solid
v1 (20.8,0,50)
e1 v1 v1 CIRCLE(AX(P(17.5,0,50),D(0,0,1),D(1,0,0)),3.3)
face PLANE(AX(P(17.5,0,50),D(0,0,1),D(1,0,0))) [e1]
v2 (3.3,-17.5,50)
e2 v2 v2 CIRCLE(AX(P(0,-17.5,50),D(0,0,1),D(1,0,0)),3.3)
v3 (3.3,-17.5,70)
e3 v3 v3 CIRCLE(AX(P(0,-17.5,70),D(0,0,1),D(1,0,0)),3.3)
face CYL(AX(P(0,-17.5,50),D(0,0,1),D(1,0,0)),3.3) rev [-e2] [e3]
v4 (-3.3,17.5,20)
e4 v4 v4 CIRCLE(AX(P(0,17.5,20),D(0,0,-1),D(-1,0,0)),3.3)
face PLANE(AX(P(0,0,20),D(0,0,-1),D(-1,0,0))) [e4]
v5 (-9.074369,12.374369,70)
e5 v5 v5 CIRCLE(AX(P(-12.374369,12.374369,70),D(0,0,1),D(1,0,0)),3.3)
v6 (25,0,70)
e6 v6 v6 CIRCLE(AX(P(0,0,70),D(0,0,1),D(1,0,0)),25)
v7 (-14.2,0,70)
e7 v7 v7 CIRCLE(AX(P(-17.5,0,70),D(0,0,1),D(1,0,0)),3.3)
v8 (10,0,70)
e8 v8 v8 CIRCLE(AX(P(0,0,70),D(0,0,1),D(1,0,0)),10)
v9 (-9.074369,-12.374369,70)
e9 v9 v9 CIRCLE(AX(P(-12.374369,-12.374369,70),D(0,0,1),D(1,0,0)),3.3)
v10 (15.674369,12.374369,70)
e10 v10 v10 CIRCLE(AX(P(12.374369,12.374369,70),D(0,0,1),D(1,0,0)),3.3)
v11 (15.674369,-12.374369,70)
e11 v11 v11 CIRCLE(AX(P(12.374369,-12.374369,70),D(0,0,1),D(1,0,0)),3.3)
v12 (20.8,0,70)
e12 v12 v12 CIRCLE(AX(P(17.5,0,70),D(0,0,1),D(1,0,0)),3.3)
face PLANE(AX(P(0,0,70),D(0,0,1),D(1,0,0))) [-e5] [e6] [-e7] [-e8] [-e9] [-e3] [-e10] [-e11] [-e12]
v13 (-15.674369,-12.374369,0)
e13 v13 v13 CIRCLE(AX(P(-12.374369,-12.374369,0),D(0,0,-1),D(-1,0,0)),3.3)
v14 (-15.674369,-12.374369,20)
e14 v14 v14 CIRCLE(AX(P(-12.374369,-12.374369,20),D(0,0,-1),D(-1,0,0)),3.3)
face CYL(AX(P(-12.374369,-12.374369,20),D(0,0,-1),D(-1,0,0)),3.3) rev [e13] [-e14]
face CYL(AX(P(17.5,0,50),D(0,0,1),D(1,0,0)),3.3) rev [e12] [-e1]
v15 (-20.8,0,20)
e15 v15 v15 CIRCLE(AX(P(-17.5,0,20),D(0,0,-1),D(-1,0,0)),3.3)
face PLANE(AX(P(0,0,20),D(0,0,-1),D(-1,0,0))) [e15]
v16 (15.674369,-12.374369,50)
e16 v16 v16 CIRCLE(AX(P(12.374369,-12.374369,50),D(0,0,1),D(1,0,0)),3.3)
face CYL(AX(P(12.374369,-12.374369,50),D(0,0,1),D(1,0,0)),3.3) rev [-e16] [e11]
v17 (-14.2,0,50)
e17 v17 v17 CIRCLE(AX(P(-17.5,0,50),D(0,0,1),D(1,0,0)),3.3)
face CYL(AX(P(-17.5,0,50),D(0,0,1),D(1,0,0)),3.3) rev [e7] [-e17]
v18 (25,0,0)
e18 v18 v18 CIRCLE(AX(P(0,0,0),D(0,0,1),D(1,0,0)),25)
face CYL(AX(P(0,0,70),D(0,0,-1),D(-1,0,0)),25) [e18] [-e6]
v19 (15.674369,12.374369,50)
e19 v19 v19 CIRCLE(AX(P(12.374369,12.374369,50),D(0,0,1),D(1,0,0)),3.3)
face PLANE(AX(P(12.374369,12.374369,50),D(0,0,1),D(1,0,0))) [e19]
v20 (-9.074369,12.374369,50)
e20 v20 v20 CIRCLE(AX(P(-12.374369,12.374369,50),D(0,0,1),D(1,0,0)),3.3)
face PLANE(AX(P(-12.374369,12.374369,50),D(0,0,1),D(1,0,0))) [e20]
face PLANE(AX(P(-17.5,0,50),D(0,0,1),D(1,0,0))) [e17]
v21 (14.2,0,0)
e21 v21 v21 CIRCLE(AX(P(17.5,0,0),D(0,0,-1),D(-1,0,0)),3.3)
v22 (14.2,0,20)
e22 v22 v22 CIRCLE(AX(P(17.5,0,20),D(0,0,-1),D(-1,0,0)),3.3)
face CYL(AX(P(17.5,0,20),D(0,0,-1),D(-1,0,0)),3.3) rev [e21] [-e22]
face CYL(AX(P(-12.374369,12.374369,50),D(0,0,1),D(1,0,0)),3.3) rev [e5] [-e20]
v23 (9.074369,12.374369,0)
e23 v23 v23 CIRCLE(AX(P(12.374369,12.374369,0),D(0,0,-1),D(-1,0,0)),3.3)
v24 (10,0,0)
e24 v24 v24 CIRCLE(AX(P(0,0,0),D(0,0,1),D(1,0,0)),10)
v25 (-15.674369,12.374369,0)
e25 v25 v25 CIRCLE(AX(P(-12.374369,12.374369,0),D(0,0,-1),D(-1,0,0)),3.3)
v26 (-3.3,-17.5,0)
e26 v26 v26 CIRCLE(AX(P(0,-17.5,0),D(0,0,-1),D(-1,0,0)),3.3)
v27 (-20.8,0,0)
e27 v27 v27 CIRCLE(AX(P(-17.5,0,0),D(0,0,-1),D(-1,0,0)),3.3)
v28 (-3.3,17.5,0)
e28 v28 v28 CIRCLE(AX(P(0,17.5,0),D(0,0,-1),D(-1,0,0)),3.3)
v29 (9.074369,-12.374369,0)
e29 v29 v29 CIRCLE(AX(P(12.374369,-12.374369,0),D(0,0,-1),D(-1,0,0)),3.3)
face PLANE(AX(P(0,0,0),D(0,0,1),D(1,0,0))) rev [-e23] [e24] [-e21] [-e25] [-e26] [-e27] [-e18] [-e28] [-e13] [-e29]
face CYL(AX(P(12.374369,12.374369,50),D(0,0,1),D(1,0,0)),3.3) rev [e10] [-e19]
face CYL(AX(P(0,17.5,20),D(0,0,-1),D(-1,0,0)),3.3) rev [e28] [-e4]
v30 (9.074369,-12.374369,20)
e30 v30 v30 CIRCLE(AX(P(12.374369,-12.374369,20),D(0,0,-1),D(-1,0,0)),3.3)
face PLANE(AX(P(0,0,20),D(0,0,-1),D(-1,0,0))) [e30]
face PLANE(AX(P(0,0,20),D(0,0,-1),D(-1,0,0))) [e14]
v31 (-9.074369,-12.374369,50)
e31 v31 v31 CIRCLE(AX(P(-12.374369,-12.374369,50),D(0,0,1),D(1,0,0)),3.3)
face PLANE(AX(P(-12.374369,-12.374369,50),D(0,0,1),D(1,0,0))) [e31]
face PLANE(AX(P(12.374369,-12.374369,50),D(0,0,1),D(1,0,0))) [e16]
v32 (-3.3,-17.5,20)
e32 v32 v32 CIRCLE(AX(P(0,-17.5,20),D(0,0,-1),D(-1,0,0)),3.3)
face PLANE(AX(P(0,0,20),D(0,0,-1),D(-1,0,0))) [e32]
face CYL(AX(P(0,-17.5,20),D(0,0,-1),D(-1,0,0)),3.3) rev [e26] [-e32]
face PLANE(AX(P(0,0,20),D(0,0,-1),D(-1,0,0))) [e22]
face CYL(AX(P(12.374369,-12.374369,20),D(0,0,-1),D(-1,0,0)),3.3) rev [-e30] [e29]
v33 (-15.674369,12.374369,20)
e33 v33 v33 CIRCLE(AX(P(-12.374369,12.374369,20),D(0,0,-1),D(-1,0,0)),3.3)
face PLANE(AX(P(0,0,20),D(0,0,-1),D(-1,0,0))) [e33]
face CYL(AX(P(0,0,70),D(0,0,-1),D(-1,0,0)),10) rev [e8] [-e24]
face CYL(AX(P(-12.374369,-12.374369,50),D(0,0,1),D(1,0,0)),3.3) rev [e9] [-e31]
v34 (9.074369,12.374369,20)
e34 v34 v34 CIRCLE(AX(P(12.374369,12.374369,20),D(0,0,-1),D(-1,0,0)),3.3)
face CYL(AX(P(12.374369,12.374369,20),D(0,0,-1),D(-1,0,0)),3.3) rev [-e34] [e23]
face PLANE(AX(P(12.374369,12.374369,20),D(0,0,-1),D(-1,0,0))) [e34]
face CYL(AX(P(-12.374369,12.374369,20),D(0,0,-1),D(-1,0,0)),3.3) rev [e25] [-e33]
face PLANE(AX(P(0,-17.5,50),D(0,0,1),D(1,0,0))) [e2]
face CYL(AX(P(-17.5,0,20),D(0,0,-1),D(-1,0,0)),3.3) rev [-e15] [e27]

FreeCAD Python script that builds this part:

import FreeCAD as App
import Part
import Sketcher

doc = App.newDocument("Part")
body = doc.addObject("PartDesign::Body", "Body")

# Sketch on XY plane
sketch1 = body.newObject("Sketcher::SketchObject", "Sketch")
sketch1.AttachmentSupport = (doc.getObject("XY_Plane"), [""])
sketch1.MapMode = "FlatFace"
sketch1.addGeometry([
    Part.Circle(App.Vector(0, 0, 0), App.Vector(0, 0, 1), 25),
    Part.Circle(App.Vector(0, 0, 0), App.Vector(0, 0, 1), 10),
], False)
sketch1.addConstraint([
    Sketcher.Constraint("Coincident", 0, 3, -1, 1),
    Sketcher.Constraint("Coincident", 1, 3, -1, 1),
    Sketcher.Constraint("Diameter", 0, 50.0),
    Sketcher.Constraint("Diameter", 1, 20.0),
])
pad1 = body.newObject("PartDesign::Pad", "Pad")
pad1.Profile = sketch1
pad1.Length = 70

# Sketch on XY plane
sketch2 = body.newObject("Sketcher::SketchObject", "Sketch001")
sketch2.AttachmentSupport = (doc.getObject("XY_Plane"), [""])
sketch2.MapMode = "FlatFace"
sketch2.AttachmentOffset = App.Placement(App.Vector(0, 0, 70), App.Rotation())
sketch2.addGeometry([
    Part.Circle(App.Vector(12.4, 12.4, 0), App.Vector(0, 0, 1), 3.3),  # 0
    Part.Circle(App.Vector(17.5, 0, 0), App.Vector(0, 0, 1), 3.3),  # 1
    Part.Circle(App.Vector(12.4, -12.4, 0), App.Vector(0, 0, 1), 3.3),  # 2
    Part.Circle(App.Vector(0, -17.5, 0), App.Vector(0, 0, 1), 3.3),  # 3
    Part.Circle(App.Vector(-12.4, -12.4, 0), App.Vector(0, 0, 1), 3.3),  # 4
    Part.Circle(App.Vector(-17.5, 0, 0), App.Vector(0, 0, 1), 3.3),  # 5
    Part.Circle(App.Vector(-12.4, 12.4, 0), App.Vector(0, 0, 1), 3.3),  # 6
], False)
sketch2.addConstraint([
    Sketcher.Constraint("Equal", 0, 1),
    Sketcher.Constraint("Equal", 1, 2),
    Sketcher.Constraint("Equal", 2, 3),
    Sketcher.Constraint("Equal", 3, 4),
    Sketcher.Constraint("Equal", 4, 5),
    Sketcher.Constraint("Equal", 5, 6),
    Sketcher.Constraint("Symmetric", 0, 3, 4, 3, -1, 1),
    Sketcher.Constraint("Symmetric", 1, 3, 5, 3, -1, 1),
    Sketcher.Constraint("Symmetric", 2, 3, 6, 3, -1, 1),
    Sketcher.Constraint("Symmetric", 2, 3, 4, 3, -2),
    Sketcher.Constraint("PointOnObject", 1, 3, -1),
    Sketcher.Constraint("PointOnObject", 3, 3, -2),
    Sketcher.Constraint("Diameter", 0, 6.6),
    Sketcher.Constraint("DistanceX", 5, 3, 1, 3, 35.0),
    Sketcher.Constraint("DistanceY", 3, 3, -1, 1, 17.5),
    Sketcher.Constraint("DistanceX", -1, 1, 0, 3, 12.374369),
    Sketcher.Constraint("DistanceY", -1, 1, 0, 3, 12.374369),
])
pocket1 = body.newObject("PartDesign::Pocket", "Pocket")
pocket1.Profile = sketch2
pocket1.Length = 20

# Sketch on XY plane
sketch3 = body.newObject("Sketcher::SketchObject", "Sketch002")
sketch3.AttachmentSupport = (doc.getObject("XY_Plane"), [""])
sketch3.MapMode = "FlatFace"
sketch3.AttachmentOffset = App.Placement(App.Vector(0, 0, 20), App.Rotation())
sketch3.addGeometry([
    Part.Circle(App.Vector(0, 17.5, 0), App.Vector(0, 0, 1), 3.3),  # 0
    Part.Circle(App.Vector(-12.4, 12.4, 0), App.Vector(0, 0, 1), 3.3),  # 1
    Part.Circle(App.Vector(-17.5, 0, 0), App.Vector(0, 0, 1), 3.3),  # 2
    Part.Circle(App.Vector(-12.4, -12.4, 0), App.Vector(0, 0, 1), 3.3),  # 3
    Part.Circle(App.Vector(0, -17.5, 0), App.Vector(0, 0, 1), 3.3),  # 4
    Part.Circle(App.Vector(12.4, -12.4, 0), App.Vector(0, 0, 1), 3.3),  # 5
    Part.Circle(App.Vector(17.5, 0, 0), App.Vector(0, 0, 1), 3.3),  # 6
    Part.Circle(App.Vector(12.4, 12.4, 0), App.Vector(0, 0, 1), 3.3),  # 7
], False)
sketch3.addConstraint([
    Sketcher.Constraint("Equal", 0, 1),
    Sketcher.Constraint("Equal", 1, 2),
    Sketcher.Constraint("Equal", 2, 3),
    Sketcher.Constraint("Equal", 3, 4),
    Sketcher.Constraint("Equal", 4, 5),
    Sketcher.Constraint("Equal", 5, 6),
    Sketcher.Constraint("Equal", 6, 7),
    Sketcher.Constraint("Symmetric", 0, 3, 4, 3, -1, 1),
    Sketcher.Constraint("Symmetric", 1, 3, 5, 3, -1, 1),
    Sketcher.Constraint("Symmetric", 2, 3, 6, 3, -1, 1),
    Sketcher.Constraint("Symmetric", 3, 3, 7, 3, -1, 1),
    Sketcher.Constraint("Symmetric", 3, 3, 5, 3, -2),
    Sketcher.Constraint("PointOnObject", 0, 3, -2),
    Sketcher.Constraint("PointOnObject", 2, 3, -1),
    Sketcher.Constraint("Diameter", 0, 6.6),
    Sketcher.Constraint("DistanceY", 4, 3, 0, 3, 35.0),
    Sketcher.Constraint("DistanceX", 2, 3, -1, 1, 17.5),
    Sketcher.Constraint("DistanceX", 1, 3, -1, 1, 12.374369),
    Sketcher.Constraint("DistanceY", -1, 1, 1, 3, 12.374369),
])
pocket2 = body.newObject("PartDesign::Pocket", "Pocket001")
pocket2.Profile = sketch3
pocket2.Length = 20

doc.recompute()
